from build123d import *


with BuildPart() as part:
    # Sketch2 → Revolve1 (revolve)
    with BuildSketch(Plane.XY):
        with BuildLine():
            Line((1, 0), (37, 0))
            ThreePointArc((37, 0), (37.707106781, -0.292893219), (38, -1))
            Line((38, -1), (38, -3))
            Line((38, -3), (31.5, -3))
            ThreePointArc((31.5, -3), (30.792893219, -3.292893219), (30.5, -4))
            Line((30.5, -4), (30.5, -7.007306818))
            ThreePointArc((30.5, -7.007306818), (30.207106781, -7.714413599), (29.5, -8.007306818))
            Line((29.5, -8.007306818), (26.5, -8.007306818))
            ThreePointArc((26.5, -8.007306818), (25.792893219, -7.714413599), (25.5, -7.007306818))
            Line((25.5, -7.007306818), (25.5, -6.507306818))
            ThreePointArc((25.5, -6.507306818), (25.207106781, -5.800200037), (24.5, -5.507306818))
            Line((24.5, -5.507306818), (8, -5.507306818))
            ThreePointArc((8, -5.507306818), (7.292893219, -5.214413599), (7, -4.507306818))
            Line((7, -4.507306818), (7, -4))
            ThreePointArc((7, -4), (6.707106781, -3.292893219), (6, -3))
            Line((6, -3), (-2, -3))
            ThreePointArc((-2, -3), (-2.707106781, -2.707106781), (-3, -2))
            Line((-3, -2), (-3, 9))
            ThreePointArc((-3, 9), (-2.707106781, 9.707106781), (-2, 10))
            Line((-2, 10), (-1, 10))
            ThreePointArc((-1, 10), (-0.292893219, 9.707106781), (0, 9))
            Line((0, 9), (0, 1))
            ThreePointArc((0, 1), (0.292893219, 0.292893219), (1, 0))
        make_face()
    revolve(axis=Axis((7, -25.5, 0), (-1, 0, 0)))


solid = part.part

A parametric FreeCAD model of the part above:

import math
import FreeCAD as App
import Part
import Sketcher

V = App.Vector
Q = App.Units.Quantity

doc = App.newDocument("Part")
body = doc.addObject("PartDesign::Body", "Body")

# Sketch on XY plane
sketch1 = body.newObject("Sketcher::SketchObject", "Sketch")
sketch1.AttachmentSupport = (doc.getObject("XY_Plane"), [""])
sketch1.MapMode = "FlatFace"
sketch1.addGeometry([
    Part.LineSegment(V(37, 0, 0), V(1, 0, 0)),  # 0
    Part.ArcOfCircle(Part.Circle(V(1, 1, 0), V(0, 0, 1), 1), math.radians(-180), math.radians(-90)),  # 1
    Part.LineSegment(V(0, 1, 0), V(0, 9, 0)),  # 2
    Part.ArcOfCircle(Part.Circle(V(-1, 9, 0), V(0, 0, 1), 1), math.radians(0), math.radians(90)),  # 3
    Part.LineSegment(V(-1, 10, 0), V(-2, 10, 0)),  # 4
    Part.ArcOfCircle(Part.Circle(V(-2, 9, 0), V(0, 0, 1), 1), math.radians(90), math.radians(180)),  # 5
    Part.LineSegment(V(-3, 9, 0), V(-3, -2, 0)),  # 6
    Part.ArcOfCircle(Part.Circle(V(-2, -2, 0), V(0, 0, 1), 1), math.radians(-180), math.radians(-90)),  # 7
    Part.LineSegment(V(-2, -3, 0), V(6, -3, 0)),  # 8
    Part.ArcOfCircle(Part.Circle(V(6, -4, 0), V(0, 0, 1), 1), math.radians(0), math.radians(90)),  # 9
    Part.LineSegment(V(7, -4, 0), V(7, -4.5, 0)),  # 10
    Part.ArcOfCircle(Part.Circle(V(8, -4.5, 0), V(0, 0, 1), 1), math.radians(-180), math.radians(-90)),  # 11
    Part.LineSegment(V(8, -5.5, 0), V(24.5, -5.5, 0)),  # 12
    Part.ArcOfCircle(Part.Circle(V(24.5, -6.5, 0), V(0, 0, 1), 1), math.radians(0), math.radians(90)),  # 13
    Part.LineSegment(V(25.5, -6.5, 0), V(25.5, -7, 0)),  # 14
    Part.ArcOfCircle(Part.Circle(V(26.5, -7, 0), V(0, 0, 1), 1), math.radians(-180), math.radians(-90)),  # 15
    Part.LineSegment(V(26.5, -8, 0), V(29.5, -8, 0)),  # 16
    Part.ArcOfCircle(Part.Circle(V(29.5, -7, 0), V(0, 0, 1), 1), math.radians(-90), math.radians(0)),  # 17
    Part.LineSegment(V(30.5, -7, 0), V(30.5, -4, 0)),  # 18
    Part.ArcOfCircle(Part.Circle(V(31.5, -4, 0), V(0, 0, 1), 1), math.radians(90), math.radians(180)),  # 19
    Part.LineSegment(V(31.5, -3, 0), V(38, -3, 0)),  # 20
    Part.LineSegment(V(38, -3, 0), V(38, -1, 0)),  # 21
    Part.ArcOfCircle(Part.Circle(V(37, -1, 0), V(0, 0, 1), 1), math.radians(0), math.radians(90)),  # 22
], False)
sketch1.addGeometry(Part.LineSegment(V(38, -25.5, 0), V(-3, -25.5, 0)), True)  # axis
sketch1.addConstraint([
    Sketcher.Constraint("Tangent", 0, 2, 1, 2),
    Sketcher.Constraint("Tangent", 1, 1, 2, 1),
    Sketcher.Constraint("Tangent", 2, 2, 3, 1),
    Sketcher.Constraint("Tangent", 3, 2, 4, 1),
    Sketcher.Constraint("Tangent", 4, 2, 5, 1),
    Sketcher.Constraint("Tangent", 5, 2, 6, 1),
    Sketcher.Constraint("Tangent", 6, 2, 7, 1),
    Sketcher.Constraint("Tangent", 7, 2, 8, 1),
    Sketcher.Constraint("Tangent", 8, 2, 9, 2),
    Sketcher.Constraint("Tangent", 9, 1, 10, 1),
    Sketcher.Constraint("Tangent", 10, 2, 11, 1),
    Sketcher.Constraint("Tangent", 11, 2, 12, 1),
    Sketcher.Constraint("Tangent", 12, 2, 13, 2),
    Sketcher.Constraint("Tangent", 13, 1, 14, 1),
    Sketcher.Constraint("Tangent", 14, 2, 15, 1),
    Sketcher.Constraint("Tangent", 15, 2, 16, 1),
    Sketcher.Constraint("Tangent", 16, 2, 17, 1),
    Sketcher.Constraint("Tangent", 17, 2, 18, 1),
    Sketcher.Constraint("Tangent", 18, 2, 19, 2),
    Sketcher.Constraint("Tangent", 19, 1, 20, 1),
    Sketcher.Constraint("Coincident", 20, 2, 21, 1),
    Sketcher.Constraint("Tangent", 21, 2, 22, 1),
    Sketcher.Constraint("Tangent", 22, 2, 0, 1),
    Sketcher.Constraint("Horizontal", 0),
    Sketcher.Constraint("Vertical", 2),
    Sketcher.Constraint("Horizontal", 4),
    Sketcher.Constraint("Vertical", 6),
    Sketcher.Constraint("Horizontal", 8),
    Sketcher.Constraint("Vertical", 10),
    Sketcher.Constraint("Horizontal", 12),
    Sketcher.Constraint("Vertical", 14),
    Sketcher.Constraint("Horizontal", 16),
    Sketcher.Constraint("Vertical", 18),
    Sketcher.Constraint("Horizontal", 20),
    Sketcher.Constraint("Vertical", 21),
    Sketcher.Constraint("Horizontal", 23),
    Sketcher.Constraint("Equal", 1, 3),
    Sketcher.Constraint("Equal", 3, 5),
    Sketcher.Constraint("Equal", 5, 7),
    Sketcher.Constraint("Equal", 7, 9),
    Sketcher.Constraint("Equal", 9, 11),
    Sketcher.Constraint("Equal", 11, 13),
    Sketcher.Constraint("Equal", 13, 15),
    Sketcher.Constraint("Equal", 15, 17),
    Sketcher.Constraint("Equal", 17, 19),
    Sketcher.Constraint("Equal", 19, 22),
    Sketcher.Constraint("PointOnObject", 0, 2, -1),
    Sketcher.Constraint("PointOnObject", 1, 1, -2),
    Sketcher.Constraint("Horizontal", 9, 3, 19, 3),
    Sketcher.Constraint("Vertical", 21, 2, 23, 1),
    Sketcher.Constraint("Vertical", 6, 2, 23, 2),
    Sketcher.Constraint("Equal", 8, 2),
    Sketcher.Constraint("Radius", 1, Q("1 mm")),
    Sketcher.Constraint("DistanceX", 0, 2, 0, 1, Q("36 mm")),
    Sketcher.Constraint("DistanceX", 4, 2, 4, 1, Q("1 mm")),
    Sketcher.Constraint("DistanceX", 8, 1, 8, 2, Q("8 mm")),
    Sketcher.Constraint("DistanceX", 16, 1, 16, 2, Q("3 mm")),
    Sketcher.Constraint("DistanceY", 6, 2, 6, 1, Q("11 mm")),
    Sketcher.Constraint("DistanceX", 12, 1, 12, 2, Q("16.5 mm")),
    Sketcher.Constraint("DistanceY", 14, 2, 14, 1, Q("0.5 mm")),
    Sketcher.Constraint("DistanceY", 23, 1, -1, 1, Q("25.5 mm")),
    Sketcher.Constraint("DistanceY", 10, 2, 10, 1, Q("0.507307 mm")),
])
revolution = body.newObject("PartDesign::Revolution", "Revolution")
revolution.Profile = sketch1
revolution.ReferenceAxis = (sketch1, ["Axis0"])
revolution.Angle = 360

doc.recompute()
